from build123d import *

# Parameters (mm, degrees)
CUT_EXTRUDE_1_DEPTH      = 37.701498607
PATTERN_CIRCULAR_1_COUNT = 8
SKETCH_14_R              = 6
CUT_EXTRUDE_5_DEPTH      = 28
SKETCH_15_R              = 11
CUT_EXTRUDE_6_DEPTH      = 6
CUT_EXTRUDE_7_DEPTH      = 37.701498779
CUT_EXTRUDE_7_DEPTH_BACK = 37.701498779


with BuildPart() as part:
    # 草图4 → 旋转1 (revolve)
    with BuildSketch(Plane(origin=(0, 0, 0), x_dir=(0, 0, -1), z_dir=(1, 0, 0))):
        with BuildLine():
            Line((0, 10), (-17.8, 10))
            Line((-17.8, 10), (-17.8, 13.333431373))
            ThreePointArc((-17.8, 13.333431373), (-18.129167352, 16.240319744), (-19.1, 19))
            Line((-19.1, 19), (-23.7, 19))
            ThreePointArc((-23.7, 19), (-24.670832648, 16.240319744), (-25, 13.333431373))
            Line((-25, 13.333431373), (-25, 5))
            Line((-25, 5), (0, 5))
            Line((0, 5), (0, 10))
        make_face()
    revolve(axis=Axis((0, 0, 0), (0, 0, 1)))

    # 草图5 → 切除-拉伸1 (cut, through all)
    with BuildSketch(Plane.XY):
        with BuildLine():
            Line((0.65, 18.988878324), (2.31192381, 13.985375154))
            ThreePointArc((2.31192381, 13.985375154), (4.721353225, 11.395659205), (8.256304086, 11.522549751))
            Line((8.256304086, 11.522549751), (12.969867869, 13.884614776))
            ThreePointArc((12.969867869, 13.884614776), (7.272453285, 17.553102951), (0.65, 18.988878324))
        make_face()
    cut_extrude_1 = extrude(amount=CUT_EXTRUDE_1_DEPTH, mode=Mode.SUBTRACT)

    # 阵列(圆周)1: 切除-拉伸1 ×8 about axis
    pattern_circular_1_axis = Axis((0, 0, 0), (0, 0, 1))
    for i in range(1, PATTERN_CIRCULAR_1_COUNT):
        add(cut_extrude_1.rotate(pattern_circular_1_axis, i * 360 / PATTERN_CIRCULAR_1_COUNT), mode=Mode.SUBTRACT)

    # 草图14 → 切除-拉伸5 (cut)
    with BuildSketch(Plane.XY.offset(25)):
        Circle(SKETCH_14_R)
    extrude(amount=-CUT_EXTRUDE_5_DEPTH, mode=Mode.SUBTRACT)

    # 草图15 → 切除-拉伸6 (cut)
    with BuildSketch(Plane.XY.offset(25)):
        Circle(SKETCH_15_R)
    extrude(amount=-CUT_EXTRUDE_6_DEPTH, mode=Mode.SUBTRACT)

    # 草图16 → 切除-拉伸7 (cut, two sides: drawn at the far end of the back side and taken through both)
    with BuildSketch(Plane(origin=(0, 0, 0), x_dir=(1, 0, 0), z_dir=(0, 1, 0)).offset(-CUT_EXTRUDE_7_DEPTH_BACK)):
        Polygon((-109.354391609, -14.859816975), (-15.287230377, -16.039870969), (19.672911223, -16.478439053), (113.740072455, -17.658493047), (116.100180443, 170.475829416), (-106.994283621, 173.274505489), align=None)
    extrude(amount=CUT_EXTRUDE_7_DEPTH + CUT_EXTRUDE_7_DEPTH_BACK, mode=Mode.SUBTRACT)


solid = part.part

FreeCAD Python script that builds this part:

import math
import FreeCAD as App
import Part
import Sketcher

doc = App.newDocument("Part")
params = doc.addObject("Spreadsheet::Sheet", "Params")
for row, (alias, value) in enumerate([
    ("sketch1_radius", "13 mm"),
    ("sketch1_width", "5 mm"),
    ("sketch1_height", "25 mm"),
    ("sketch1_height2", "17.8 mm"),
    ("sketch1_height3", "4.6 mm"),
    ("revolution_angle", "360 deg"),
    ("sketch2_radius", "19 mm"),
    ("sketch3_diameter", "12 mm"),
    ("pocket2_length", "28 mm"),
    ("sketch4_diameter", "22 mm"),
    ("pocket3_length", "6 mm"),
], start=1):
    params.set(f"A{row}", alias)
    params.set(f"B{row}", "=" + value)
    params.setAlias(f"B{row}", alias)

body = doc.addObject("PartDesign::Body", "Body")

sketch1 = doc.addObject("Sketcher::SketchObject", "Sketch")
body.addObject(sketch1)
sketch1.AttachmentSupport = (doc.YZ_Plane, [""])
sketch1.MapMode = "FlatFace"
sketch1.addGeometry(Part.LineSegment(App.Vector(10, 0, 0), App.Vector(10, 17.8, 0)), False)
sketch1.addGeometry(Part.LineSegment(App.Vector(10, 17.8, 0), App.Vector(13.3, 17.8, 0)), False)
sketch1.addGeometry(Part.ArcOfCircle(Part.Circle(App.Vector(13.3, 30.8, 0), App.Vector(0, 0, 1), 13), math.radians(-90), math.radians(-64)), False)
sketch1.addGeometry(Part.LineSegment(App.Vector(19, 19.1, 0), App.Vector(19, 23.7, 0)), False)
sketch1.addGeometry(Part.ArcOfCircle(Part.Circle(App.Vector(13.3, 12, 0), App.Vector(0, 0, 1), 13), math.radians(64), math.radians(90)), False)
sketch1.addGeometry(Part.LineSegment(App.Vector(13.3, 25, 0), App.Vector(5, 25, 0)), False)
sketch1.addGeometry(Part.LineSegment(App.Vector(5, 25, 0), App.Vector(5, 0, 0)), False)
sketch1.addGeometry(Part.LineSegment(App.Vector(5, 0, 0), App.Vector(10, 0, 0)), False)
sketch1.addConstraint(Sketcher.Constraint("Coincident", 0, 2, 1, 1))
sketch1.addConstraint(Sketcher.Constraint("Tangent", 1, 2, 2, 1))
sketch1.addConstraint(Sketcher.Constraint("Coincident", 2, 2, 3, 1))
sketch1.addConstraint(Sketcher.Constraint("Coincident", 3, 2, 4, 1))
sketch1.addConstraint(Sketcher.Constraint("Tangent", 4, 2, 5, 1))
sketch1.addConstraint(Sketcher.Constraint("Coincident", 5, 2, 6, 1))
sketch1.addConstraint(Sketcher.Constraint("Coincident", 6, 2, 7, 1))
sketch1.addConstraint(Sketcher.Constraint("Coincident", 7, 2, 0, 1))
sketch1.addConstraint(Sketcher.Constraint("Vertical", 0))
sketch1.addConstraint(Sketcher.Constraint("Horizontal", 1))
sketch1.addConstraint(Sketcher.Constraint("Vertical", 3))
sketch1.addConstraint(Sketcher.Constraint("Horizontal", 5))
sketch1.addConstraint(Sketcher.Constraint("Vertical", 6))
sketch1.addConstraint(Sketcher.Constraint("Horizontal", 7))
sketch1.addConstraint(Sketcher.Constraint("Equal", 2, 4))
sketch1.addConstraint(Sketcher.Constraint("PointOnObject", 6, 2, -1))
sketch1.addConstraint(Sketcher.Constraint("Vertical", 2, 3, 4, 3))
sketch1.addConstraint(Sketcher.Constraint("Radius", 2, 13.0))
sketch1.addConstraint(Sketcher.Constraint("DistanceX", 7, 1, 7, 2, 5.0))
sketch1.addConstraint(Sketcher.Constraint("DistanceY", 6, 2, 6, 1, 25.0))
sketch1.addConstraint(Sketcher.Constraint("DistanceY", 0, 1, 0, 2, 17.8))
sketch1.addConstraint(Sketcher.Constraint("DistanceY", 3, 1, 3, 2, 4.6))
sketch1.addConstraint(Sketcher.Constraint("DistanceX", -1, 1, 0, 2, 10.0))
sketch1.addConstraint(Sketcher.Constraint("DistanceX", -1, 1, 2, 2, 19.0))
sketch1.setExpression("Constraints[17]", "Params.sketch1_radius")
sketch1.setExpression("Constraints[18]", "Params.sketch1_width")
sketch1.setExpression("Constraints[19]", "Params.sketch1_height")
sketch1.setExpression("Constraints[20]", "Params.sketch1_height2")
sketch1.setExpression("Constraints[21]", "Params.sketch1_height3")
revolution = doc.addObject("PartDesign::Revolution", "Revolution")
body.addObject(revolution)
revolution.Profile = sketch1
revolution.ReferenceAxis = (sketch1, ["V_Axis"])
revolution.setExpression("Angle", "Params.revolution_angle")

sketch2 = doc.addObject("Sketcher::SketchObject", "Sketch001")
body.addObject(sketch2)
sketch2.AttachmentSupport = (doc.XY_Plane, [""])
sketch2.MapMode = "FlatFace"
sketch2.addGeometry(Part.LineSegment(App.Vector(0.7, 19, 0), App.Vector(2.3, 14, 0)), False)
sketch2.addGeometry(Part.ArcOfCircle(Part.Circle(App.Vector(6.3, 15.3, 0), App.Vector(0, 0, 1), 4.3), math.radians(-162), math.radians(-63)), False)
sketch2.addGeometry(Part.LineSegment(App.Vector(8.3, 11.5, 0), App.Vector(13, 13.9, 0)), False)
sketch2.addGeometry(Part.ArcOfCircle(Part.Circle(App.Vector(0, 0, 0), App.Vector(0, 0, 1), 19), math.radians(47), math.radians(88)), False)
sketch2.addConstraint(Sketcher.Constraint("Tangent", 0, 2, 1, 1))
sketch2.addConstraint(Sketcher.Constraint("Tangent", 1, 2, 2, 1))
sketch2.addConstraint(Sketcher.Constraint("Coincident", 2, 2, 3, 1))
sketch2.addConstraint(Sketcher.Constraint("Coincident", 3, 2, 0, 1))
sketch2.addConstraint(Sketcher.Constraint("Coincident", 3, 3, -1, 1))
sketch2.addConstraint(Sketcher.Constraint("Equal", 0, 2))
sketch2.addConstraint(Sketcher.Constraint("Radius", 3, 19.0))
sketch2.addConstraint(Sketcher.Constraint("Radius", 1, 4.255))
sketch2.addConstraint(Sketcher.Constraint("DistanceX", 3, 2, 1, 3, 5.7))
sketch2.addConstraint(Sketcher.Constraint("DistanceX", -1, 1, 1, 3, 6.35))
sketch2.addConstraint(Sketcher.Constraint("Distance", 0, 5.272289))
sketch2.setExpression("Constraints[6]", "Params.sketch2_radius")
pocket1 = doc.addObject("PartDesign::Pocket", "Pocket")
body.addObject(pocket1)
pocket1.Profile = sketch2
pocket1.Type = "ThroughAll"
pocket1.Reversed = True
doc.recompute()

polarpattern = doc.addObject("PartDesign::PolarPattern", "PolarPattern")
body.addObject(polarpattern)
polarpattern.Originals = [pocket1]
polarpattern.Axis = (doc.Z_Axis, [""])
polarpattern.Angle = 360
polarpattern.Occurrences = 8
body.Tip = polarpattern

sketch3 = doc.addObject("Sketcher::SketchObject", "Sketch002")
body.addObject(sketch3)
sketch3.AttachmentSupport = (doc.XY_Plane, [""])
sketch3.MapMode = "FlatFace"
sketch3.AttachmentOffset = App.Placement(App.Vector(0, 0, 25), App.Rotation())
sketch3.addGeometry(Part.Circle(App.Vector(0, 0, 0), App.Vector(0, 0, 1), 6), False)
sketch3.addConstraint(Sketcher.Constraint("Coincident", 0, 3, -1, 1))
sketch3.addConstraint(Sketcher.Constraint("Diameter", 0, 12.0))
sketch3.setExpression("Constraints[1]", "Params.sketch3_diameter")
pocket2 = doc.addObject("PartDesign::Pocket", "Pocket001")
body.addObject(pocket2)
pocket2.Profile = sketch3
pocket2.setExpression("Length", "Params.pocket2_length")

sketch4 = doc.addObject("Sketcher::SketchObject", "Sketch003")
body.addObject(sketch4)
sketch4.AttachmentSupport = (doc.XY_Plane, [""])
sketch4.MapMode = "FlatFace"
sketch4.AttachmentOffset = App.Placement(App.Vector(0, 0, 25), App.Rotation())
sketch4.addGeometry(Part.Circle(App.Vector(0, 0, 0), App.Vector(0, 0, 1), 11), False)
sketch4.addConstraint(Sketcher.Constraint("Coincident", 0, 3, -1, 1))
sketch4.addConstraint(Sketcher.Constraint("Diameter", 0, 22.0))
sketch4.setExpression("Constraints[1]", "Params.sketch4_diameter")
pocket3 = doc.addObject("PartDesign::Pocket", "Pocket002")
body.addObject(pocket3)
pocket3.Profile = sketch4
pocket3.setExpression("Length", "Params.pocket3_length")

sketch5 = doc.addObject("Sketcher::SketchObject", "Sketch004")
body.addObject(sketch5)
sketch5.AttachmentSupport = (doc.XZ_Plane, [""])
sketch5.MapMode = "FlatFace"
sketch5.addGeometry(Part.LineSegment(App.Vector(-109, 15, 0), App.Vector(-15, 16, 0)), False)
sketch5.addGeometry(Part.LineSegment(App.Vector(-15, 16, 0), App.Vector(20, 16, 0)), False)
sketch5.addGeometry(Part.LineSegment(App.Vector(20, 16, 0), App.Vector(114, 18, 0)), False)
sketch5.addGeometry(Part.LineSegment(App.Vector(114, 18, 0), App.Vector(116, -170, 0)), False)
sketch5.addGeometry(Part.LineSegment(App.Vector(116, -170, 0), App.Vector(-107, -173, 0)), False)
sketch5.addGeometry(Part.LineSegment(App.Vector(-107, -173, 0), App.Vector(-109, 15, 0)), False)
sketch5.addConstraint(Sketcher.Constraint("Coincident", 0, 2, 1, 1))
sketch5.addConstraint(Sketcher.Constraint("Coincident", 1, 2, 2, 1))
sketch5.addConstraint(Sketcher.Constraint("Coincident", 2, 2, 3, 1))
sketch5.addConstraint(Sketcher.Constraint("Coincident", 3, 2, 4, 1))
sketch5.addConstraint(Sketcher.Constraint("Coincident", 4, 2, 5, 1))
sketch5.addConstraint(Sketcher.Constraint("Coincident", 5, 2, 0, 1))
sketch5.addConstraint(Sketcher.Constraint("Parallel", 0, 1))
sketch5.addConstraint(Sketcher.Constraint("Parallel", 1, 2))
sketch5.addConstraint(Sketcher.Constraint("Perpendicular", 2, 3))
sketch5.addConstraint(Sketcher.Constraint("Perpendicular", 3, 4))
sketch5.addConstraint(Sketcher.Constraint("Perpendicular", 4, 5))
sketch5.addConstraint(Sketcher.Constraint("Equal", 0, 2))
sketch5.addConstraint(Sketcher.Constraint("DistanceY", 4, 2, 2, 2, 190.932999))
sketch5.addConstraint(Sketcher.Constraint("DistanceY", 3, 2, 0, 2, 186.5157))
sketch5.addConstraint(Sketcher.Constraint("DistanceX", 0, 2, -1, 1, 15.28723))
sketch5.addConstraint(Sketcher.Constraint("DistanceY", -1, 1, 0, 2, 16.039871))
sketch5.addConstraint(Sketcher.Constraint("DistanceX", -1, 1, 1, 2, 19.672911))
sketch5.addConstraint(Sketcher.Constraint("DistanceX", -1, 1, 3, 2, 116.10018))
pocket4 = doc.addObject("PartDesign::Pocket", "Pocket003")
body.addObject(pocket4)
pocket4.Profile = sketch5
pocket4.Type = "ThroughAll"
pocket4.Midplane = True

doc.recompute()
